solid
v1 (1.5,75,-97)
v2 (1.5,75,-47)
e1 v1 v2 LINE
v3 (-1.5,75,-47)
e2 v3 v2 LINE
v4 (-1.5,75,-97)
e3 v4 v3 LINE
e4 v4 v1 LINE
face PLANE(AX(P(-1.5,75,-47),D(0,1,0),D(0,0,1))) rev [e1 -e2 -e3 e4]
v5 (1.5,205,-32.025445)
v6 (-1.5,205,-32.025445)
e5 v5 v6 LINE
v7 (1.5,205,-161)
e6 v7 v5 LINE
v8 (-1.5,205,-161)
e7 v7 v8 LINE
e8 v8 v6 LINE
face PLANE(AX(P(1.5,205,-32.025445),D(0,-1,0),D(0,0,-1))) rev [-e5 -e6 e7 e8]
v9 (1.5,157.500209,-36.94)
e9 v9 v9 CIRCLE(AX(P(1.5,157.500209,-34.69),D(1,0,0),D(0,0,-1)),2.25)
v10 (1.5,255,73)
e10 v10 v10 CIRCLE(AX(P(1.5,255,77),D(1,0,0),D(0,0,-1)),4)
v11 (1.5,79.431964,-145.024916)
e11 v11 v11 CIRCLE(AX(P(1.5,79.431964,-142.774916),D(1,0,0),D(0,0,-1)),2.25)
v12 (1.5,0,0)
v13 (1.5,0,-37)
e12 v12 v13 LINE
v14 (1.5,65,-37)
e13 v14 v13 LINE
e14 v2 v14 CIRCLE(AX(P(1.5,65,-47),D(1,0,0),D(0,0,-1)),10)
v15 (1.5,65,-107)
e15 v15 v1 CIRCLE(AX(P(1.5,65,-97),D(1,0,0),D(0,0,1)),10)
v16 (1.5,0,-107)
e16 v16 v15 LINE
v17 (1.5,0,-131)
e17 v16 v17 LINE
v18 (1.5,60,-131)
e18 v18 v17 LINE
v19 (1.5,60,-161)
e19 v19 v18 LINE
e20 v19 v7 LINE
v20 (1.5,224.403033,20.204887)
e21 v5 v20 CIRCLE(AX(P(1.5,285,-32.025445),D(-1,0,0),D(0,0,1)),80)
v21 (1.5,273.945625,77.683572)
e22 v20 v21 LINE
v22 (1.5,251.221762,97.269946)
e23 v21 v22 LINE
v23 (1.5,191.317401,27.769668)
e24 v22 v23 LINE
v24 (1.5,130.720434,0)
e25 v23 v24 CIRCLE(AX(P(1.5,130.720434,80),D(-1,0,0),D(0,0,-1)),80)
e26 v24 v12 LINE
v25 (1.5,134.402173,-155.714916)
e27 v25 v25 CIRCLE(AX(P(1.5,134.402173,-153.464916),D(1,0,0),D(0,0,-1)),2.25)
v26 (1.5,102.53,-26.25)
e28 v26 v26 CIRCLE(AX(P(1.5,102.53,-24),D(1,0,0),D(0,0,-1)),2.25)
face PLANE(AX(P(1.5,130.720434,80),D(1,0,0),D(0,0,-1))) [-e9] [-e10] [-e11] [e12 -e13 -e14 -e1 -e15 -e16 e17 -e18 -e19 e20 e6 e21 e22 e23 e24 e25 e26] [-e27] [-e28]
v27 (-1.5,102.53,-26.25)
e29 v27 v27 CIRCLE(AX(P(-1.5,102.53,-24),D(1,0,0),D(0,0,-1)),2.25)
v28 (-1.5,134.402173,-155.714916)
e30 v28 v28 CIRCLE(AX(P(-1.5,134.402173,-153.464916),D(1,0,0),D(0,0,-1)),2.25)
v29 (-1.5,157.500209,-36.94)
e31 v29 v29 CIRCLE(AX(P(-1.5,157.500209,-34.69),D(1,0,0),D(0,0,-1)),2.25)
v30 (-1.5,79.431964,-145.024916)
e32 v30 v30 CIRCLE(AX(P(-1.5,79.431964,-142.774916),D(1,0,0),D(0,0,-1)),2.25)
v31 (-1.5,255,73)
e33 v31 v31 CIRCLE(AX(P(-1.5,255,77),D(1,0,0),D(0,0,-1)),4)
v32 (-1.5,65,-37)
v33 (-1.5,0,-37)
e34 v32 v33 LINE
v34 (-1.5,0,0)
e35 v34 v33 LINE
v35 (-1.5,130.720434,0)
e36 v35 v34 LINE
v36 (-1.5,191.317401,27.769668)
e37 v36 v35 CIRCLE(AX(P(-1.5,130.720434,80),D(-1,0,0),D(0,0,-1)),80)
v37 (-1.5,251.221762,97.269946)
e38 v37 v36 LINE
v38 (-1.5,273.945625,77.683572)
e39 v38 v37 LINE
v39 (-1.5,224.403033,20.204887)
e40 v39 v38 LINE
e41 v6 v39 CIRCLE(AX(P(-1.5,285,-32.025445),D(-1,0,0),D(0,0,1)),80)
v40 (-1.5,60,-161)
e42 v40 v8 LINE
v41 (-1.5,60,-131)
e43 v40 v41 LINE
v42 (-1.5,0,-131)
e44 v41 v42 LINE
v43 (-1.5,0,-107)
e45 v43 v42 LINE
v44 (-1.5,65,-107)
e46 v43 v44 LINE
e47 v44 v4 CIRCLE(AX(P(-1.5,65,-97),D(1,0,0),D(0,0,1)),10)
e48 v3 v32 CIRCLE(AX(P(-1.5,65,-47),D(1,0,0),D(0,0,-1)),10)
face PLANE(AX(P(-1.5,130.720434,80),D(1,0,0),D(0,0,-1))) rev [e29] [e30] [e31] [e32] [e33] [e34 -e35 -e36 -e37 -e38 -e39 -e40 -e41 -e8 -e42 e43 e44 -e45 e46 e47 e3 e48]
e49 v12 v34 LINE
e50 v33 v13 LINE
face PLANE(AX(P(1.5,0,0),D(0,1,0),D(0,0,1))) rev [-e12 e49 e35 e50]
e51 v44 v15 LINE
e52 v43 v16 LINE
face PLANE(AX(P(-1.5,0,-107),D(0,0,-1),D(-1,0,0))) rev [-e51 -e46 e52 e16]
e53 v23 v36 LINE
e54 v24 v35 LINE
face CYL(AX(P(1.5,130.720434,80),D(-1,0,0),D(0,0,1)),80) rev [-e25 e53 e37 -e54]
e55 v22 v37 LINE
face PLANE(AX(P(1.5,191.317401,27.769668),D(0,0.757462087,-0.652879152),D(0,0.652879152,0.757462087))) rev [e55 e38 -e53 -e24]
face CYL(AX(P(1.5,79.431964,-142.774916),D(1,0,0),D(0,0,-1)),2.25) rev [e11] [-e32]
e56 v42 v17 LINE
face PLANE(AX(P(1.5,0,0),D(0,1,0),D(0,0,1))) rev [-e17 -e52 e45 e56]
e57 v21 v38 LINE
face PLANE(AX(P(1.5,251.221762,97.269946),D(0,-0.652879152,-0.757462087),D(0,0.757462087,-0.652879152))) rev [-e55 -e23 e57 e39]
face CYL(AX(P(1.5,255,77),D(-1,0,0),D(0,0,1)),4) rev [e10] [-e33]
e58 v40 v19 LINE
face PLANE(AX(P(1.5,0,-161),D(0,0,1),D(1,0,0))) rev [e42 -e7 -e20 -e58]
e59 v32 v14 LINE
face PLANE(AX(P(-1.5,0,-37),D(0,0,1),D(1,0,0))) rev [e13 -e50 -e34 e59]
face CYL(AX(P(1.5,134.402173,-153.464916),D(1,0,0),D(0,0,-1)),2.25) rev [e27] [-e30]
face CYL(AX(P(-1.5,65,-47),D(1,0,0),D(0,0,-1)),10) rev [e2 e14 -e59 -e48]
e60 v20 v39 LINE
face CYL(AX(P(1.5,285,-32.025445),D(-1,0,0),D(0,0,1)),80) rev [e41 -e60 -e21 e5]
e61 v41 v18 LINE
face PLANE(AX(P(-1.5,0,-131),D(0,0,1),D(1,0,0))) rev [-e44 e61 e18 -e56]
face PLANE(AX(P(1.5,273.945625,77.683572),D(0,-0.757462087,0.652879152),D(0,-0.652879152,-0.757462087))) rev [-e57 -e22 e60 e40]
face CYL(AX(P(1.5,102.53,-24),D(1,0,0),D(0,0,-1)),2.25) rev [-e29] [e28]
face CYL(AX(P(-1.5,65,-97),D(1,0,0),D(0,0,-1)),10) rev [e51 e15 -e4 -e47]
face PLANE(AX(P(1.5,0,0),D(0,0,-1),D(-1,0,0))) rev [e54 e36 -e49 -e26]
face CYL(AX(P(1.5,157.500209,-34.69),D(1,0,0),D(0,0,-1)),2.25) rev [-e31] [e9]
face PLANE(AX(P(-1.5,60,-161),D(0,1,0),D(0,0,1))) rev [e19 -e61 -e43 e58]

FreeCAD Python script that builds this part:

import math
import FreeCAD as App
import Part
import Sketcher
from FreeCAD import Vector
Q = App.Units.Quantity


def add_polygon(sketch, points):
    """Adds a closed chain of lines whose ends are joined by coincident constraints."""
    first, n = sketch.GeometryCount, len(points)
    for a, b in zip(points, points[1:] + points[:1]):
        sketch.addGeometry(Part.LineSegment(App.Vector(*a, 0), App.Vector(*b, 0)), False)
    for i in range(n):
        sketch.addConstraint(Sketcher.Constraint("Coincident", first + i, 2, first + (i + 1) % n, 1))

doc = App.newDocument("Part")
body = doc.addObject("PartDesign::Body", "Body")

# Sketch on YZ plane
sketch1 = body.newObject("Sketcher::SketchObject", "Sketch")
sketch1.AttachmentSupport = (doc.getObject("YZ_Plane"), [""])
sketch1.MapMode = "FlatFace"
sketch1.addGeometry(Part.LineSegment(Vector(251.221762, 97.269946, 0), Vector(191.317401, 27.769668, 0)), False)
sketch1.addGeometry(Part.ArcOfCircle(Part.Circle(Vector(130.720434, 80, 0), Vector(0, 0, 1), 80), math.radians(-90), math.radians(-40.759031)), False)
sketch1.addGeometry(Part.LineSegment(Vector(130.720434, 0, 0), Vector(0, 0, 0)), False)
sketch1.addGeometry(Part.LineSegment(Vector(0, 0, 0), Vector(0, -161, 0)), False)
sketch1.addGeometry(Part.LineSegment(Vector(0, -161, 0), Vector(205, -161, 0)), False)
sketch1.addGeometry(Part.LineSegment(Vector(205, -161, 0), Vector(205, -32.025445, 0)), False)
sketch1.addGeometry(Part.ArcOfCircle(Part.Circle(Vector(285, -32.025445, 0), Vector(0, 0, 1), 80), math.radians(139.240969), math.radians(180)), False)
sketch1.addGeometry(Part.LineSegment(Vector(224.403033, 20.204887, 0), Vector(273.945625, 77.683572, 0)), False)
sketch1.addGeometry(Part.LineSegment(Vector(273.945625, 77.683572, 0), Vector(251.221762, 97.269946, 0)), False)
sketch1.addGeometry(Part.Circle(Vector(255, 77, 0), Vector(0, 0, 1), 4), False)
sketch1.addConstraint(Sketcher.Constraint("Tangent", 0, 2, 1, 2))
sketch1.addConstraint(Sketcher.Constraint("Tangent", 1, 1, 2, 1))
sketch1.addConstraint(Sketcher.Constraint("Coincident", 2, 2, 3, 1))
sketch1.addConstraint(Sketcher.Constraint("Coincident", 3, 2, 4, 1))
sketch1.addConstraint(Sketcher.Constraint("Coincident", 4, 2, 5, 1))
sketch1.addConstraint(Sketcher.Constraint("Tangent", 5, 2, 6, 2))
sketch1.addConstraint(Sketcher.Constraint("Tangent", 6, 1, 7, 1))
sketch1.addConstraint(Sketcher.Constraint("Coincident", 7, 2, 8, 1))
sketch1.addConstraint(Sketcher.Constraint("Coincident", 8, 2, 0, 1))
sketch1.addConstraint(Sketcher.Constraint("Horizontal", 2))
sketch1.addConstraint(Sketcher.Constraint("Vertical", 3))
sketch1.addConstraint(Sketcher.Constraint("Horizontal", 4))
sketch1.addConstraint(Sketcher.Constraint("Vertical", 5))
sketch1.addConstraint(Sketcher.Constraint("Coincident", 2, 2, -1, 1))
sketch1.addConstraint(Sketcher.Constraint("Equal", 1, 6))
sketch1.addConstraint(Sketcher.Constraint("Parallel", 0, 7))
sketch1.addConstraint(Sketcher.Constraint("Perpendicular", 7, 8))
sketch1.addConstraint(Sketcher.Constraint("Diameter", 9, Q("8 mm")))
sketch1.addConstraint(Sketcher.Constraint("Radius", 1, Q("80 mm")))
sketch1.addConstraint(Sketcher.Constraint("DistanceX", 4, 1, 4, 2, Q("205 mm")))
sketch1.addConstraint(Sketcher.Constraint("DistanceY", 3, 2, 3, 1, Q("161 mm")))
sketch1.addConstraint(Sketcher.Constraint("Distance", 8, Q("30 mm")))
sketch1.addConstraint(Sketcher.Constraint("DistanceX", -1, 1, 9, 3, Q("255 mm")))
sketch1.addConstraint(Sketcher.Constraint("DistanceY", -1, 1, 9, 3, Q("77 mm")))
sketch1.addConstraint(Sketcher.Constraint("DistanceX", -1, 1, 0, 2, Q("191.317401 mm")))
sketch1.addConstraint(Sketcher.Constraint("Distance", 7, Q("75.88325 mm")))
sketch1.addConstraint(Sketcher.Constraint("DistanceX", 2, 2, 2, 1, Q("130.720434 mm")))
pad1 = body.newObject("PartDesign::Pad", "Pad")
pad1.Profile = sketch1
pad1.Length = 3
pad1.Midplane = True

# Sketch on YZ plane
sketch2 = body.newObject("Sketcher::SketchObject", "Sketch001")
sketch2.AttachmentSupport = (doc.getObject("YZ_Plane"), [""])
sketch2.MapMode = "FlatFace"
sketch2.AttachmentOffset = App.Placement(Vector(0, 0, 1.5), App.Rotation())
sketch2.addGeometry(Part.LineSegment(Vector(0, -37, 0), Vector(0, -107, 0)), False)
sketch2.addGeometry(Part.LineSegment(Vector(0, -107, 0), Vector(65, -107, 0)), False)
sketch2.addGeometry(Part.ArcOfCircle(Part.Circle(Vector(65, -97, 0), Vector(0, 0, 1), 10), math.radians(-90), math.radians(0)), False)
sketch2.addGeometry(Part.LineSegment(Vector(75, -97, 0), Vector(75, -47, 0)), False)
sketch2.addGeometry(Part.ArcOfCircle(Part.Circle(Vector(65, -47, 0), Vector(0, 0, 1), 10), math.radians(0), math.radians(90)), False)
sketch2.addGeometry(Part.LineSegment(Vector(65, -37, 0), Vector(0, -37, 0)), False)
sketch2.addConstraint(Sketcher.Constraint("Coincident", 0, 2, 1, 1))
sketch2.addConstraint(Sketcher.Constraint("Tangent", 1, 2, 2, 1))
sketch2.addConstraint(Sketcher.Constraint("Tangent", 2, 2, 3, 1))
sketch2.addConstraint(Sketcher.Constraint("Tangent", 3, 2, 4, 1))
sketch2.addConstraint(Sketcher.Constraint("Tangent", 4, 2, 5, 1))
sketch2.addConstraint(Sketcher.Constraint("Coincident", 5, 2, 0, 1))
sketch2.addConstraint(Sketcher.Constraint("Vertical", 0))
sketch2.addConstraint(Sketcher.Constraint("Horizontal", 1))
sketch2.addConstraint(Sketcher.Constraint("Vertical", 3))
sketch2.addConstraint(Sketcher.Constraint("Horizontal", 5))
sketch2.addConstraint(Sketcher.Constraint("Equal", 2, 4))
sketch2.addConstraint(Sketcher.Constraint("PointOnObject", 0, 2, -2))
sketch2.addConstraint(Sketcher.Constraint("Radius", 2, Q("10 mm")))
sketch2.addConstraint(Sketcher.Constraint("DistanceX", 1, 1, 1, 2, Q("65 mm")))
sketch2.addConstraint(Sketcher.Constraint("DistanceY", 0, 2, 0, 1, Q("70 mm")))
sketch2.addConstraint(Sketcher.Constraint("DistanceY", 2, 3, -1, 1, Q("97 mm")))
pocket1 = body.newObject("PartDesign::Pocket", "Pocket")
pocket1.Profile = sketch2
pocket1.Type = "ThroughAll"

# Sketch on YZ plane
sketch3 = body.newObject("Sketcher::SketchObject", "Sketch002")
sketch3.AttachmentSupport = (doc.getObject("YZ_Plane"), [""])
sketch3.MapMode = "FlatFace"
sketch3.AttachmentOffset = App.Placement(Vector(0, 0, 1.5), App.Rotation())
sketch3.addGeometry(Part.Circle(Vector(157.500209, -34.69, 0), Vector(0, 0, 1), 2.25), False)
sketch3.addGeometry(Part.Circle(Vector(102.53, -24, 0), Vector(0, 0, 1), 2.25), False)
sketch3.addGeometry(Part.Circle(Vector(134.402173, -153.464916, 0), Vector(0, 0, 1), 2.25), False)
sketch3.addGeometry(Part.Circle(Vector(79.431964, -142.774916, 0), Vector(0, 0, 1), 2.25), False)
sketch3.addConstraint(Sketcher.Constraint("Equal", 0, 1))
sketch3.addConstraint(Sketcher.Constraint("Equal", 1, 2))
sketch3.addConstraint(Sketcher.Constraint("Equal", 2, 3))
sketch3.addConstraint(Sketcher.Constraint("Diameter", 0, Q("4.5 mm")))
sketch3.addConstraint(Sketcher.Constraint("DistanceY", 1, 3, -1, 1, Q("24 mm")))
sketch3.addConstraint(Sketcher.Constraint("DistanceY", 0, 3, -1, 1, Q("34.69 mm")))
sketch3.addConstraint(Sketcher.Constraint("DistanceX", -1, 1, 1, 3, Q("102.53 mm")))
sketch3.addConstraint(Sketcher.Constraint("DistanceY", 2, 3, 3, 3, Q("10.69 mm")))
sketch3.addConstraint(Sketcher.Constraint("DistanceX", -1, 1, 0, 3, Q("157.500209 mm")))
sketch3.addConstraint(Sketcher.Constraint("DistanceX", 3, 3, 2, 3, Q("54.970209 mm")))
sketch3.addConstraint(Sketcher.Constraint("DistanceX", -1, 1, 2, 3, Q("134.402173 mm")))
sketch3.addConstraint(Sketcher.Constraint("DistanceY", 2, 3, -1, 1, Q("153.464916 mm")))
doc.recompute()
hole = body.newObject("PartDesign::Hole", "Hole")
hole.Profile = sketch3
hole.ThreadType = "None"
hole.Diameter = 4.5
hole.DepthType = "Dimension"
hole.Depth = 4
hole.DrillPoint = "Angled"
hole.DrillPointAngle = 118

# Sketch on YZ plane
sketch4 = body.newObject("Sketcher::SketchObject", "Sketch003")
sketch4.AttachmentSupport = (doc.getObject("YZ_Plane"), [""])
sketch4.MapMode = "FlatFace"
sketch4.AttachmentOffset = App.Placement(Vector(0, 0, 1.5), App.Rotation())
add_polygon(sketch4, [(60, -131), (0, -131), (0, -161), (60, -161)])  # lines 0-3
sketch4.addConstraint(Sketcher.Constraint("Horizontal", 0))
sketch4.addConstraint(Sketcher.Constraint("Vertical", 1))
sketch4.addConstraint(Sketcher.Constraint("Horizontal", 2))
sketch4.addConstraint(Sketcher.Constraint("Vertical", 3))
sketch4.addConstraint(Sketcher.Constraint("PointOnObject", 0, 2, -2))
sketch4.addConstraint(Sketcher.Constraint("DistanceX", 0, 2, 0, 1, Q("60 mm")))
sketch4.addConstraint(Sketcher.Constraint("DistanceY", 1, 2, 1, 1, Q("30 mm")))
sketch4.addConstraint(Sketcher.Constraint("DistanceY", 0, 2, -1, 1, Q("131 mm")))
pocket2 = body.newObject("PartDesign::Pocket", "Pocket001")
pocket2.Profile = sketch4
pocket2.Type = "ThroughAll"

doc.recompute()
